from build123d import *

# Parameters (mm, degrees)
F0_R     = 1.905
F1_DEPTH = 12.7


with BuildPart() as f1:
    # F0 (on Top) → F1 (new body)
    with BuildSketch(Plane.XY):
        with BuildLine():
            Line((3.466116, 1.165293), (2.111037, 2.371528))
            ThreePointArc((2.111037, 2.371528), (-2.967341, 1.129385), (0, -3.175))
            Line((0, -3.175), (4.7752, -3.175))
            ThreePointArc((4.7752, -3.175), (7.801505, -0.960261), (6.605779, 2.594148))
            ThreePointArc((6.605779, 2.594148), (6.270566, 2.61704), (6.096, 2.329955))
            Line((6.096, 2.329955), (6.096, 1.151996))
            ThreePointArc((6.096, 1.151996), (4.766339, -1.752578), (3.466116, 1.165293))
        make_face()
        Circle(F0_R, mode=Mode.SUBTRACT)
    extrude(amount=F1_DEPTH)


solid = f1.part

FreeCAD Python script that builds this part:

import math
import FreeCAD as App
import Part
import Sketcher
Q = App.Units.Quantity

doc = App.newDocument("Part")
body = doc.addObject("PartDesign::Body", "Body")

# Sketch on XY plane
sketch1 = body.newObject("Sketcher::SketchObject", "Sketch")
sketch1.AttachmentSupport = (doc.getObject("XY_Plane"), [""])
sketch1.MapMode = "FlatFace"
sketch1.addGeometry([
    Part.LineSegment(App.Vector(3.47, 1.17, 0), App.Vector(2.11, 2.37, 0)),  # 0
    Part.ArcOfCircle(Part.Circle(App.Vector(0, 0, 0), App.Vector(0, 0, 1), 3.17), math.radians(48), math.radians(270)),  # 1
    Part.LineSegment(App.Vector(0, -3.17, 0), App.Vector(4.78, -3.17, 0)),  # 2
    Part.ArcOfCircle(Part.Circle(App.Vector(4.78, 0, 0), App.Vector(0, 0, 1), 3.17), math.radians(-90), math.radians(55)),  # 3
    Part.ArcOfCircle(Part.Circle(App.Vector(6.42, 2.33, 0), App.Vector(0, 0, 1), 0.32), math.radians(55), math.radians(180)),  # 4
    Part.LineSegment(App.Vector(6.1, 2.33, 0), App.Vector(6.1, 1.15, 0)),  # 5
    Part.ArcOfCircle(Part.Circle(App.Vector(4.78, 0, 0), App.Vector(0, 0, 1), 1.75), math.radians(138), math.radians(401)),  # 6
    Part.Circle(App.Vector(0, 0, 0), App.Vector(0, 0, 1), 1.91),  # 7
], False)
sketch1.addConstraint([
    Sketcher.Constraint("Tangent", 0, 2, 1, 1),
    Sketcher.Constraint("Tangent", 1, 2, 2, 1),
    Sketcher.Constraint("Tangent", 2, 2, 3, 1),
    Sketcher.Constraint("Tangent", 3, 2, 4, 1),
    Sketcher.Constraint("Tangent", 4, 2, 5, 1),
    Sketcher.Constraint("Coincident", 5, 2, 6, 2),
    Sketcher.Constraint("Coincident", 6, 1, 0, 1),
    Sketcher.Constraint("Horizontal", 2),
    Sketcher.Constraint("Vertical", 5),
    Sketcher.Constraint("Coincident", 1, 3, -1, 1),
    Sketcher.Constraint("Coincident", 7, 3, -1, 1),
    Sketcher.Constraint("Coincident", 6, 3, 3, 3),
    Sketcher.Constraint("Equal", 1, 3),
    Sketcher.Constraint("Diameter", 7, Q("0.15 in")),
    Sketcher.Constraint("Radius", 1, Q("0.125 in")),
    Sketcher.Constraint("Radius", 6, Q("0.069 in")),
    Sketcher.Constraint("DistanceX", 2, 1, 2, 2, Q("0.188 in")),
    Sketcher.Constraint("DistanceX", -1, 1, 4, 2, Q("0.24 in")),
    Sketcher.Constraint("Radius", 4, Q("0.323349 mm")),
    Sketcher.Constraint("Distance", 0, Q("1.814178 mm")),
])
pad1 = body.newObject("PartDesign::Pad", "Pad")
pad1.Profile = sketch1
pad1.Length = Q("0.5 in")

doc.recompute()
